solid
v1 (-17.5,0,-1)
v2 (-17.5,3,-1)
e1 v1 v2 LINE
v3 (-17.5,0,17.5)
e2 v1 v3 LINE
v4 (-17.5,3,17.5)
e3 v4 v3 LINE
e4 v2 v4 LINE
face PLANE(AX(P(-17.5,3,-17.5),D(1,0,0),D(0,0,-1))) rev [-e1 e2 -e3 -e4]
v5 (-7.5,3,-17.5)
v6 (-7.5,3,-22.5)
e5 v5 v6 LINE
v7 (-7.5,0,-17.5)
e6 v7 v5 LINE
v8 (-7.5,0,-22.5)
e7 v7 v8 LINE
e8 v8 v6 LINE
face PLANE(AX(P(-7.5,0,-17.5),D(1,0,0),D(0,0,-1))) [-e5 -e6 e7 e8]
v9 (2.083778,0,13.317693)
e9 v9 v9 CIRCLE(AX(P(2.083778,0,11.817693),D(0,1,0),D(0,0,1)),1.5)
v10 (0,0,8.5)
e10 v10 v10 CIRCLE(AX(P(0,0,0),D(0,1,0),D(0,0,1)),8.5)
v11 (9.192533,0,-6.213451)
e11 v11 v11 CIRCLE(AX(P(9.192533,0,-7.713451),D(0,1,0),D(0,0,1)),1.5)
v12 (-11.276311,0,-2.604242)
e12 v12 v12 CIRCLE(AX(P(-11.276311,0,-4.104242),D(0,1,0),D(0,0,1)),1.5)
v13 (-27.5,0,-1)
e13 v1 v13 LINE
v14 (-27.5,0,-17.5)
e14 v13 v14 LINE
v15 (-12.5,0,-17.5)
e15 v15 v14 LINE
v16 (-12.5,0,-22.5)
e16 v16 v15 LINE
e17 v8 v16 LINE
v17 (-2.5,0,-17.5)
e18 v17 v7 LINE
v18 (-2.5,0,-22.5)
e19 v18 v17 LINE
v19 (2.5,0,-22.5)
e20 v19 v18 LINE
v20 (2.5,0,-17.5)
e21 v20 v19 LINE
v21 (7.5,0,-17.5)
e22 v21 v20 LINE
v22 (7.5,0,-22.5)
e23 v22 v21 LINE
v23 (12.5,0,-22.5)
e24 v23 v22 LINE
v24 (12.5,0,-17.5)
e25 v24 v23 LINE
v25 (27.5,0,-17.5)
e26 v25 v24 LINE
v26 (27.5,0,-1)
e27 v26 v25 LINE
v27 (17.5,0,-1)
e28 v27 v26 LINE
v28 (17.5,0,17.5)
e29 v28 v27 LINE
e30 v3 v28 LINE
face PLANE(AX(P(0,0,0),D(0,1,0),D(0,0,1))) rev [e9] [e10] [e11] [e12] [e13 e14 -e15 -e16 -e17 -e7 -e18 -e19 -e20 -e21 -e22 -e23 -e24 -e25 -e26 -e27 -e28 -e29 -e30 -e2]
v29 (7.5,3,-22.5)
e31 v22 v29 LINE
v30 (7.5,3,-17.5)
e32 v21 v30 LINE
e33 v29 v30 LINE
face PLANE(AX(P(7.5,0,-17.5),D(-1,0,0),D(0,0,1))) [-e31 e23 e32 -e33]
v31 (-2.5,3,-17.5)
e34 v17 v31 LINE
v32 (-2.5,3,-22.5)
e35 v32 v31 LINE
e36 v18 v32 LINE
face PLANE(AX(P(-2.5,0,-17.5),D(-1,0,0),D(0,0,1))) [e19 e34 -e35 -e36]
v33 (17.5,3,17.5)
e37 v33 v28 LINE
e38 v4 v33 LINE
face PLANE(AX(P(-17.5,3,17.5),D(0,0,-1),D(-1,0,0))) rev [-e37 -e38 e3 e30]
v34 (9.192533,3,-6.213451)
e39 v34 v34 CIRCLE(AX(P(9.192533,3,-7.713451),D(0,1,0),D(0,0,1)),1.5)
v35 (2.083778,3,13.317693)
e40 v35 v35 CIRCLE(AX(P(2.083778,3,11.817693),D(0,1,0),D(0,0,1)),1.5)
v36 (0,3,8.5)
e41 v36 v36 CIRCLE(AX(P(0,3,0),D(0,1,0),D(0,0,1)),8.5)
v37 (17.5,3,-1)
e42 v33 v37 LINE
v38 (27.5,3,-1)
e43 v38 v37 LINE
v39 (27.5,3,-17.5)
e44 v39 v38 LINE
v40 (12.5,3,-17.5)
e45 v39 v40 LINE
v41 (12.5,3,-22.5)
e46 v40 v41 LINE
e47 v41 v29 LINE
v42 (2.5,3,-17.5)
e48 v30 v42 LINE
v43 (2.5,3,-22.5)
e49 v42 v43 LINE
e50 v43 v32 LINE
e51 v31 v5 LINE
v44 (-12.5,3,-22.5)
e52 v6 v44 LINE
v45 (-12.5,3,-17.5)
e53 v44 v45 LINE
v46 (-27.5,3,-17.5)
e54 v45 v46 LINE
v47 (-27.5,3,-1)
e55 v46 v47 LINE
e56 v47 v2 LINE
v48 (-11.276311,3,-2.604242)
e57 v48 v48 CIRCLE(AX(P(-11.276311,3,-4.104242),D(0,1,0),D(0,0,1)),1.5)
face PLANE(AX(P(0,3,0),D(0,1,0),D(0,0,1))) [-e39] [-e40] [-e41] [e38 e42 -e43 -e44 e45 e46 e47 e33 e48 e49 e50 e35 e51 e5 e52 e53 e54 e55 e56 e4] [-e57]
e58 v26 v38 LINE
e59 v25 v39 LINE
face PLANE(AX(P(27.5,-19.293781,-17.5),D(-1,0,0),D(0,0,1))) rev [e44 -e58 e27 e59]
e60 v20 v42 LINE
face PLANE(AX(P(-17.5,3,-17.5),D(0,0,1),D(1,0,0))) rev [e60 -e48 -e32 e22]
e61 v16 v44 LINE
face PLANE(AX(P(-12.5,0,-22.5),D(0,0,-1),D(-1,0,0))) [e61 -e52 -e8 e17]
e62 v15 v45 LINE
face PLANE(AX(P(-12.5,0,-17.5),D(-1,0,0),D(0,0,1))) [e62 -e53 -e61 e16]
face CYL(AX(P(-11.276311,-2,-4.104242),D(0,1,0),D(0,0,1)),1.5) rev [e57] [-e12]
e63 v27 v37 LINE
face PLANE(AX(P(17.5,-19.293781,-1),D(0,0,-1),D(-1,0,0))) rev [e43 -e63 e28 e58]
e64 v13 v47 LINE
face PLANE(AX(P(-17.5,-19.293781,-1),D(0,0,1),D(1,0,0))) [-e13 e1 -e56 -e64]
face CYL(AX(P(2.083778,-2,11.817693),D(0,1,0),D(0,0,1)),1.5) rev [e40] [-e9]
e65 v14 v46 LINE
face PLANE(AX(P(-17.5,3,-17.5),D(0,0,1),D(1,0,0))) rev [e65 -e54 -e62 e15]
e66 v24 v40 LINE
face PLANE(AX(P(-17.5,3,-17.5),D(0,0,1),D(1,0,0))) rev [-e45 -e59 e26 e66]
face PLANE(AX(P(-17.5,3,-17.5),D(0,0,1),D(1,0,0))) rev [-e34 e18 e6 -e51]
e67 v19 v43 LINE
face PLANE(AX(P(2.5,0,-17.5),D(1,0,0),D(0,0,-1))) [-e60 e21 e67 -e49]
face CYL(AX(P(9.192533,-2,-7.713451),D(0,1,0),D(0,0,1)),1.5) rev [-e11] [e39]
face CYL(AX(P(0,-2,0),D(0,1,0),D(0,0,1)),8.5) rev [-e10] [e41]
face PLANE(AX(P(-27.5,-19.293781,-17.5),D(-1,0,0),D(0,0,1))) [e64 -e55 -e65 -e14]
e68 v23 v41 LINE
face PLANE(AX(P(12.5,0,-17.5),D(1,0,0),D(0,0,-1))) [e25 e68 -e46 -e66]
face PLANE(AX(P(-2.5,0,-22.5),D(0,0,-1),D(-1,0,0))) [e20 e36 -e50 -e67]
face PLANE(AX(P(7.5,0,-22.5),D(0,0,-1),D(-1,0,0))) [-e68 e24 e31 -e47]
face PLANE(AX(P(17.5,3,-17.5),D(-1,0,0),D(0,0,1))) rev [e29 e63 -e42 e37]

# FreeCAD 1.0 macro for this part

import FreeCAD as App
import Part
import Sketcher
from FreeCAD import Vector
Q = App.Units.Quantity


def add_polygon(sketch, points):
    """Adds a closed chain of lines whose ends are joined by coincident constraints."""
    first, n = sketch.GeometryCount, len(points)
    for a, b in zip(points, points[1:] + points[:1]):
        sketch.addGeometry(Part.LineSegment(App.Vector(*a, 0), App.Vector(*b, 0)), False)
    for i in range(n):
        sketch.addConstraint(Sketcher.Constraint("Coincident", first + i, 2, first + (i + 1) % n, 1))

doc = App.newDocument("Part")
body = doc.addObject("PartDesign::Body", "Body")

# Sketch on XZ plane
sketch1 = doc.addObject("Sketcher::SketchObject", "Sketch")
body.addObject(sketch1)
sketch1.AttachmentSupport = (doc.XZ_Plane, [""])
sketch1.MapMode = "FlatFace"
add_polygon(sketch1, [(-18, -18), (-18, 18), (18, 18), (18, -18)])  # lines 0-3
sketch1.addConstraint([
    Sketcher.Constraint("Vertical", 0),
    Sketcher.Constraint("Horizontal", 1),
    Sketcher.Constraint("Vertical", 2),
    Sketcher.Constraint("Horizontal", 3),
    Sketcher.Constraint("Symmetric", 0, 2, 2, 2, -1, 1),
    Sketcher.Constraint("Equal", 3, 0),
    Sketcher.Constraint("DistanceX", 1, 1, 1, 2, Q("35 mm")),
])
pad1 = doc.addObject("PartDesign::Pad", "Pad")
body.addObject(pad1)
pad1.Profile = sketch1
pad1.Length = 3
pad1.Reversed = True

# Sketch on XZ plane
sketch2 = doc.addObject("Sketcher::SketchObject", "Sketch001")
body.addObject(sketch2)
sketch2.AttachmentSupport = (doc.XZ_Plane, [""])
sketch2.MapMode = "FlatFace"
sketch2.AttachmentOffset = App.Placement(Vector(0, 0, -3), App.Rotation())
add_polygon(sketch2, [(-12, -22), (-12, -18), (-8, -18), (-8, -22)])  # lines 0-3
sketch2.addConstraint([
    Sketcher.Constraint("Vertical", 0),
    Sketcher.Constraint("Horizontal", 1),
    Sketcher.Constraint("Vertical", 2),
    Sketcher.Constraint("Horizontal", 3),
    Sketcher.Constraint("Equal", 3, 0),
    Sketcher.Constraint("DistanceX", 1, 1, 1, 2, Q("5 mm")),
    Sketcher.Constraint("DistanceX", 0, 2, -1, 1, Q("12.5 mm")),
    Sketcher.Constraint("DistanceY", 0, 2, -1, 1, Q("17.5 mm")),
])
pad2 = doc.addObject("PartDesign::Pad", "Pad001")
body.addObject(pad2)
pad2.Profile = sketch2
pad2.Length = 3
doc.recompute()

linearpattern = doc.addObject("PartDesign::LinearPattern", "LinearPattern")
body.addObject(linearpattern)
linearpattern.Originals = [pad2]
linearpattern.Direction = (doc.X_Axis, [""])
linearpattern.Mode = "offset"
linearpattern.Offset = 10
linearpattern.Occurrences = 3
body.Tip = linearpattern

# Sketch on XZ plane
sketch3 = doc.addObject("Sketcher::SketchObject", "Sketch002")
body.addObject(sketch3)
sketch3.AttachmentSupport = (doc.XZ_Plane, [""])
sketch3.MapMode = "FlatFace"
sketch3.AttachmentOffset = App.Placement(Vector(0, 0, -3), App.Rotation())
sketch3.addGeometry([
    Part.Circle(Vector(0, 0, 0), Vector(0, 0, 1), 8.5),
    Part.Circle(Vector(2.1, 11.8, 0), Vector(0, 0, 1), 1.5),
    Part.Circle(Vector(-11.3, -4.1, 0), Vector(0, 0, 1), 1.5),
    Part.Circle(Vector(9.2, -7.7, 0), Vector(0, 0, 1), 1.5),
], False)
sketch3.addConstraint([
    Sketcher.Constraint("Coincident", 0, 3, -1, 1),
    Sketcher.Constraint("Equal", 1, 2),
    Sketcher.Constraint("Equal", 2, 3),
    Sketcher.Constraint("Diameter", 0, Q("17 mm")),
    Sketcher.Constraint("Diameter", 1, Q("3 mm")),
    Sketcher.Constraint("DistanceX", -1, 1, 1, 3, Q("2.083778 mm")),
    Sketcher.Constraint("DistanceX", 2, 3, -1, 1, Q("11.276311 mm")),
    Sketcher.Constraint("DistanceY", 2, 3, -1, 1, Q("4.104242 mm")),
    Sketcher.Constraint("DistanceY", 3, 3, -1, 1, Q("7.713451 mm")),
    Sketcher.Constraint("DistanceY", -1, 1, 1, 3, Q("11.817693 mm")),
    Sketcher.Constraint("DistanceX", -1, 1, 3, 3, Q("9.192533 mm")),
])
pocket1 = doc.addObject("PartDesign::Pocket", "Pocket")
body.addObject(pocket1)
pocket1.Profile = sketch3
pocket1.Length = 5
pocket1.Reversed = True

# Sketch on XZ plane
sketch4 = doc.addObject("Sketcher::SketchObject", "Sketch003")
body.addObject(sketch4)
sketch4.AttachmentSupport = (doc.XZ_Plane, [""])
sketch4.MapMode = "FlatFace"
sketch4.AttachmentOffset = App.Placement(Vector(0, 0, -3), App.Rotation())
add_polygon(sketch4, [(-28, -18), (-28, -1), (-18, -1), (-18, -18)])  # lines 0-3
sketch4.addConstraint([
    Sketcher.Constraint("Vertical", 0),
    Sketcher.Constraint("Horizontal", 1),
    Sketcher.Constraint("Vertical", 2),
    Sketcher.Constraint("Horizontal", 3),
    Sketcher.Constraint("DistanceX", 1, 1, 1, 2, Q("10 mm")),
    Sketcher.Constraint("DistanceY", 0, 1, 0, 2, Q("16.5 mm")),
    Sketcher.Constraint("DistanceY", 0, 2, -1, 1, Q("1 mm")),
    Sketcher.Constraint("DistanceX", 0, 2, -1, 1, Q("27.5 mm")),
])
pad3 = doc.addObject("PartDesign::Pad", "Pad002")
body.addObject(pad3)
pad3.Profile = sketch4
pad3.Length = 3
doc.recompute()

mirrored = doc.addObject("PartDesign::Mirrored", "Mirrored")
body.addObject(mirrored)
mirrored.Originals = [pad3]
mirrored.MirrorPlane = (doc.YZ_Plane, [""])
body.Tip = mirrored

doc.recompute()
